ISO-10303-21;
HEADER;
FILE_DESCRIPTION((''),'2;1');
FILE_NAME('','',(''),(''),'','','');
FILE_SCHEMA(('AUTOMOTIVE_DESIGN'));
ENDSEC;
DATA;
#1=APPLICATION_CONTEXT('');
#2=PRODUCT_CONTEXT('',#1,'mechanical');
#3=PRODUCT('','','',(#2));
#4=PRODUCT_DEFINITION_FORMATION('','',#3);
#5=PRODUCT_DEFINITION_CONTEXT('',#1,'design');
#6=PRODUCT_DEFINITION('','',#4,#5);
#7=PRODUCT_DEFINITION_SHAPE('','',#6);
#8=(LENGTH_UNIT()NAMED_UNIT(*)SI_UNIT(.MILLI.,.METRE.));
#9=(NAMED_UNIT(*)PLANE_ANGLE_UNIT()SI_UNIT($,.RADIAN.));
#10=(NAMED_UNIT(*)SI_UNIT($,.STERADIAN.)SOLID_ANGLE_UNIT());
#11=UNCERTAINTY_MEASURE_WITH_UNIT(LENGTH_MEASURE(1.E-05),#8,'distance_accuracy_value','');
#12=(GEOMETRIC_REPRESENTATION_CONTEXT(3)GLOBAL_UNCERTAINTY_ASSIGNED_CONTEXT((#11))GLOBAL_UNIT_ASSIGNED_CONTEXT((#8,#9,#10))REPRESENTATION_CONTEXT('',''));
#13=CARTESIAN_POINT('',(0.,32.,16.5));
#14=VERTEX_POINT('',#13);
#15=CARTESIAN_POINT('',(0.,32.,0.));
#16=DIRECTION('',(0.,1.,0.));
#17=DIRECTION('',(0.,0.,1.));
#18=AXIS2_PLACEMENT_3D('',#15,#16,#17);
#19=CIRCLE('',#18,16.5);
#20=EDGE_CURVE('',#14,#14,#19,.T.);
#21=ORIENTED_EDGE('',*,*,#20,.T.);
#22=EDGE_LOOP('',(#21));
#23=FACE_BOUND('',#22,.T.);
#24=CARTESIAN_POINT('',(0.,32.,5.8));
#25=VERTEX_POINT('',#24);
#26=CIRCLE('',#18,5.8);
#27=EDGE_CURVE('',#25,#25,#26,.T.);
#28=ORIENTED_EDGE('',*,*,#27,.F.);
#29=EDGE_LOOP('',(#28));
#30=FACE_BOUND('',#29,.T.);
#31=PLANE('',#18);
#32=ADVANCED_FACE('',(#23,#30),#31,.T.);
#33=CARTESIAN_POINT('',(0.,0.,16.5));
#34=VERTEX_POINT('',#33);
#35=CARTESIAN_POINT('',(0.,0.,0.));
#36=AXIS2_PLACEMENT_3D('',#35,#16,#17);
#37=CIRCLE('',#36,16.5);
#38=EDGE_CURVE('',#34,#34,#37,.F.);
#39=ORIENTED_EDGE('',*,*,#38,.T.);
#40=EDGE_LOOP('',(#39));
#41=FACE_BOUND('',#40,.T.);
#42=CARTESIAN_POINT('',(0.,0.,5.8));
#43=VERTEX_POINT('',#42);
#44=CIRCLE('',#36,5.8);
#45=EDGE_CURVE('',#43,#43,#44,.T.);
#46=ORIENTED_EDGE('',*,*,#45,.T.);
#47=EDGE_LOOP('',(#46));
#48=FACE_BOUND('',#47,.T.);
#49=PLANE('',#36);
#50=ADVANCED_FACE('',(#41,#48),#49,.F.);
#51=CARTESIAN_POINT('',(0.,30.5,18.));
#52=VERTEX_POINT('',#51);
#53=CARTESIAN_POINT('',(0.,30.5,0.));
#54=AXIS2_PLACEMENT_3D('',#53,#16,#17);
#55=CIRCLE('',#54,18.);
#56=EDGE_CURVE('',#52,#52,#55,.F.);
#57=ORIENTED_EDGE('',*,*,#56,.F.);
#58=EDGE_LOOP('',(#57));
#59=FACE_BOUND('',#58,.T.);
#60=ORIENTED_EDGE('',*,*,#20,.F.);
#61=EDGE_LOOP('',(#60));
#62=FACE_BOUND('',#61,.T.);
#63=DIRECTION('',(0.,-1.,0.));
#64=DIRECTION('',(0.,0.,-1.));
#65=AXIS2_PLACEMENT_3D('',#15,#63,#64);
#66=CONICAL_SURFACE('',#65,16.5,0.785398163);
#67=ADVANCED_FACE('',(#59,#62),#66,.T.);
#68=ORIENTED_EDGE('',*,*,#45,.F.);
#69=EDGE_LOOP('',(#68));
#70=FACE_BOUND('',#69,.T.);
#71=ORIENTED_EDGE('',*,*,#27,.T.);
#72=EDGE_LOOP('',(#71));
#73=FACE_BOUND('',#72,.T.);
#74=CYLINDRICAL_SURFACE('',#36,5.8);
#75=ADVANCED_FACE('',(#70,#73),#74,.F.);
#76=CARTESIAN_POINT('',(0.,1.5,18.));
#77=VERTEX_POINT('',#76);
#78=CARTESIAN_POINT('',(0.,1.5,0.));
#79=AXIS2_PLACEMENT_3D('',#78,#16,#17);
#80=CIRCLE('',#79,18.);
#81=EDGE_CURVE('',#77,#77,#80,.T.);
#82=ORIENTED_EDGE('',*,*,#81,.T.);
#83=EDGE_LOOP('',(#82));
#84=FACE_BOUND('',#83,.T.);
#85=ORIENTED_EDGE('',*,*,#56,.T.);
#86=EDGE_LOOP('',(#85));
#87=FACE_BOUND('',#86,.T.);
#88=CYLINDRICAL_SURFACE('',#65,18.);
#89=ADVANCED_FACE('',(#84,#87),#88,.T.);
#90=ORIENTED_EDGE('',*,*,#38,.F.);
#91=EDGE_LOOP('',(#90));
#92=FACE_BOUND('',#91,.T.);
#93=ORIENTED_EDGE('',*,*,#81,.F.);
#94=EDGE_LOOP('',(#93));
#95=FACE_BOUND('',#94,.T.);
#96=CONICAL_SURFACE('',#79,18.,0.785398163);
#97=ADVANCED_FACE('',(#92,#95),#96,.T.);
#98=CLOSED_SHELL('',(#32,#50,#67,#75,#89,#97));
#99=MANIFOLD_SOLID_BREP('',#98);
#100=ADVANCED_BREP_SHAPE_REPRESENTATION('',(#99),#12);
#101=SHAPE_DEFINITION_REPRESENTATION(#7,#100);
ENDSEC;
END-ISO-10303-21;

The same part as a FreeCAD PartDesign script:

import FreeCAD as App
import Part
import Sketcher

V = App.Vector
Q = App.Units.Quantity


def edges_at(feature, points):
    """Names of the edges that pass closest to the given points."""
    edges = feature.Shape.Edges
    near = lambda p: min(range(len(edges)), key=lambda i: edges[i].distToShape(Part.Vertex(*p))[0])
    return sorted({f"Edge{near(p) + 1}" for p in points})

doc = App.newDocument("Part")
body = doc.addObject("PartDesign::Body", "Body")

sketch1 = body.newObject("Sketcher::SketchObject", "Sketch")
sketch1.AttachmentSupport = (doc.getObject("XZ_Plane"), [""])
sketch1.MapMode = "FlatFace"
sketch1.addGeometry(Part.Circle(V(0, 0, 0), V(0, 0, 1), 18), False)
sketch1.addConstraint(Sketcher.Constraint("Coincident", 0, 3, -1, 1))
sketch1.addConstraint(Sketcher.Constraint("Diameter", 0, Q("36 mm")))
pad1 = body.newObject("PartDesign::Pad", "Pad")
pad1.Profile = sketch1
pad1.Length = 32
pad1.Reversed = True

sketch2 = body.newObject("Sketcher::SketchObject", "Sketch001")
sketch2.AttachmentSupport = (doc.getObject("XZ_Plane"), [""])
sketch2.MapMode = "FlatFace"
sketch2.AttachmentOffset = App.Placement(V(0, 0, -32), App.Rotation())
sketch2.addGeometry(Part.Circle(V(0, 0, 0), V(0, 0, 1), 6), False)
sketch2.addConstraint(Sketcher.Constraint("Coincident", 0, 3, -1, 1))
sketch2.addConstraint(Sketcher.Constraint("Diameter", 0, Q("11.6 mm")))
pocket1 = body.newObject("PartDesign::Pocket", "Pocket")
pocket1.Profile = sketch2
pocket1.Type = "ThroughAll"
pocket1.Reversed = True
doc.recompute()

chamfer = body.newObject("PartDesign::Chamfer", "Chamfer")
chamfer.Base = (pocket1, edges_at(pocket1, [(0, 0, -18), (0, 32, -18)]))
chamfer.Size = 1.5

doc.recompute()
